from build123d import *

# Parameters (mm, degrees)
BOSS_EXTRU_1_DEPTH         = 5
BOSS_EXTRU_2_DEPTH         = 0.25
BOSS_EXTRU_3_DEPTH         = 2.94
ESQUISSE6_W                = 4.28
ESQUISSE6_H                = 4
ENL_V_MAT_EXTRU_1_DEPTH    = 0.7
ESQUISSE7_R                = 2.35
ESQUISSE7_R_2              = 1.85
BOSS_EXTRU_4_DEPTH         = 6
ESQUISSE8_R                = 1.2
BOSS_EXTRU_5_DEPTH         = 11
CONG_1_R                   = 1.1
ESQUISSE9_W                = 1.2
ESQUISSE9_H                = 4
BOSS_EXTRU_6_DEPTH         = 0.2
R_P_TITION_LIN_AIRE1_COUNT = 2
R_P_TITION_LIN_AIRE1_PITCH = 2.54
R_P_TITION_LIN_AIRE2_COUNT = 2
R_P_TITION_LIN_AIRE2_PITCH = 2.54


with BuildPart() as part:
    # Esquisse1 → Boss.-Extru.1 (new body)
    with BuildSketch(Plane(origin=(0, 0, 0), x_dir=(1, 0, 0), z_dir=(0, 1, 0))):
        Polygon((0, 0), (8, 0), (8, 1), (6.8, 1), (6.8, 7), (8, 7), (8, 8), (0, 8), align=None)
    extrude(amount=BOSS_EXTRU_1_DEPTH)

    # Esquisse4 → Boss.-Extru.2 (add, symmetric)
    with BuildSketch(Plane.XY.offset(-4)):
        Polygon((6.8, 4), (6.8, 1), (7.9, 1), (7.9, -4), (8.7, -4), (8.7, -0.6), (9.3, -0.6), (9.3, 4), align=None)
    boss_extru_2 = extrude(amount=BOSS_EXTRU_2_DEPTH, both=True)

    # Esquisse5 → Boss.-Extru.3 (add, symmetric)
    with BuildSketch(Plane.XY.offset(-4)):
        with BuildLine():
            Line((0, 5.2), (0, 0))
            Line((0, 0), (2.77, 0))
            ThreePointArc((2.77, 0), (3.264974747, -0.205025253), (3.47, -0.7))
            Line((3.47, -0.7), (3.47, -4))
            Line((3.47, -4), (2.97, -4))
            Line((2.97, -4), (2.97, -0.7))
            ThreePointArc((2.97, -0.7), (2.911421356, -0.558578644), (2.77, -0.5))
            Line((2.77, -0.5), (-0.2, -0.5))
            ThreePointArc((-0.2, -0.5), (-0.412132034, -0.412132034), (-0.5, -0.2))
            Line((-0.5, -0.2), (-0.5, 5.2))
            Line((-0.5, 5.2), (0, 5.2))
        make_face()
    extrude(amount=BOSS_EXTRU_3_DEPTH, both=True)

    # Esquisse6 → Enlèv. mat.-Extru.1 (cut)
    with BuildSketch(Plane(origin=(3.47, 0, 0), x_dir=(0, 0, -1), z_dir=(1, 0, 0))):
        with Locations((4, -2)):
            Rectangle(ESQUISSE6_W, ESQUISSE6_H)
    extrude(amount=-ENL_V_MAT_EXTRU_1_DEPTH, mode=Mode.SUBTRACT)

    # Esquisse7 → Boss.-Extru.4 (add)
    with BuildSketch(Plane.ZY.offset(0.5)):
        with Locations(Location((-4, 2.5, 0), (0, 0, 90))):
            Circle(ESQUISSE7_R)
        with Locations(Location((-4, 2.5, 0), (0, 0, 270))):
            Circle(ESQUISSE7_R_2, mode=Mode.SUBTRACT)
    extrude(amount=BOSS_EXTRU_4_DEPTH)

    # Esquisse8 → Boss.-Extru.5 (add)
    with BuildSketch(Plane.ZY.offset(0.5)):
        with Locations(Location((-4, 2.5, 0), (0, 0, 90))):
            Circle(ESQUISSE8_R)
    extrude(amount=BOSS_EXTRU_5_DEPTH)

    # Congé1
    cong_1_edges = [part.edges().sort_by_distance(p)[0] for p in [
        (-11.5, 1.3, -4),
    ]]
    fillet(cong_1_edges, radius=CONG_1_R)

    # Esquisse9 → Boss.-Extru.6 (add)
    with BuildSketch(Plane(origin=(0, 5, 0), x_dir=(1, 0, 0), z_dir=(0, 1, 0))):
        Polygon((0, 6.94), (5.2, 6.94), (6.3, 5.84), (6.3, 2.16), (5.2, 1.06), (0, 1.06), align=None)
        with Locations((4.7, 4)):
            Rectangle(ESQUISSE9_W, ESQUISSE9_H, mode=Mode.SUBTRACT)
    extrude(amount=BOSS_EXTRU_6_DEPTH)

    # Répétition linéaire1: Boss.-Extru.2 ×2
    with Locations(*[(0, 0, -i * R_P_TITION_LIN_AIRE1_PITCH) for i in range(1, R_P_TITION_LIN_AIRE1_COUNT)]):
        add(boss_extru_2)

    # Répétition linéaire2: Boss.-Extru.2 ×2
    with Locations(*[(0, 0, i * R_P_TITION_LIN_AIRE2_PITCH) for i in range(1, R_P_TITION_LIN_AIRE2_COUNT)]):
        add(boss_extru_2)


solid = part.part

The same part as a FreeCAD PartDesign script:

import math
import FreeCAD as App
import Part
import Sketcher
Q = App.Units.Quantity


def edges_at(feature, points):
    """Names of the edges that pass closest to the given points."""
    edges = feature.Shape.Edges
    near = lambda p: min(range(len(edges)), key=lambda i: edges[i].distToShape(Part.Vertex(*p))[0])
    return sorted({f"Edge{near(p) + 1}" for p in points})

doc = App.newDocument("Part")
body = doc.addObject("PartDesign::Body", "Body")

sketch1 = doc.addObject("Sketcher::SketchObject", "Sketch")
body.addObject(sketch1)
sketch1.AttachmentSupport = (doc.XZ_Plane, [""])
sketch1.MapMode = "FlatFace"
sketch1.addGeometry([
    Part.LineSegment(App.Vector(0, 0, 0), App.Vector(8, 0, 0)),
    Part.LineSegment(App.Vector(8, 0, 0), App.Vector(8, -1, 0)),
    Part.LineSegment(App.Vector(8, -1, 0), App.Vector(6.8, -1, 0)),
    Part.LineSegment(App.Vector(6.8, -1, 0), App.Vector(6.8, -7, 0)),
    Part.LineSegment(App.Vector(6.8, -7, 0), App.Vector(8, -7, 0)),
    Part.LineSegment(App.Vector(8, -7, 0), App.Vector(8, -8, 0)),
    Part.LineSegment(App.Vector(8, -8, 0), App.Vector(0, -8, 0)),
    Part.LineSegment(App.Vector(0, -8, 0), App.Vector(0, 0, 0)),
], False)
sketch1.addConstraint([
    Sketcher.Constraint("Coincident", 0, 2, 1, 1),
    Sketcher.Constraint("Coincident", 1, 2, 2, 1),
    Sketcher.Constraint("Coincident", 2, 2, 3, 1),
    Sketcher.Constraint("Coincident", 3, 2, 4, 1),
    Sketcher.Constraint("Coincident", 4, 2, 5, 1),
    Sketcher.Constraint("Coincident", 5, 2, 6, 1),
    Sketcher.Constraint("Coincident", 6, 2, 7, 1),
    Sketcher.Constraint("Coincident", 7, 2, 0, 1),
    Sketcher.Constraint("Horizontal", 0),
    Sketcher.Constraint("Vertical", 1),
    Sketcher.Constraint("Horizontal", 2),
    Sketcher.Constraint("Vertical", 3),
    Sketcher.Constraint("Horizontal", 4),
    Sketcher.Constraint("Vertical", 5),
    Sketcher.Constraint("Horizontal", 6),
    Sketcher.Constraint("Vertical", 7),
    Sketcher.Constraint("Coincident", 7, 2, -1, 1),
    Sketcher.Constraint("Vertical", 1, 2, 4, 2),
    Sketcher.Constraint("Equal", 1, 5),
    Sketcher.Constraint("Equal", 6, 7),
    Sketcher.Constraint("DistanceX", 0, 1, 0, 2, Q("8 mm")),
    Sketcher.Constraint("DistanceY", 1, 2, 1, 1, Q("1 mm")),
    Sketcher.Constraint("DistanceX", 2, 2, 2, 1, Q("1.2 mm")),
])
pad1 = doc.addObject("PartDesign::Pad", "Pad")
body.addObject(pad1)
pad1.Profile = sketch1
pad1.Length = 5
pad1.Reversed = True

sketch2 = doc.addObject("Sketcher::SketchObject", "Sketch001")
body.addObject(sketch2)
sketch2.AttachmentSupport = (doc.XY_Plane, [""])
sketch2.MapMode = "FlatFace"
sketch2.AttachmentOffset = App.Placement(App.Vector(0, 0, -4), App.Rotation())
sketch2.addGeometry([
    Part.LineSegment(App.Vector(6.8, 4, 0), App.Vector(6.8, 1, 0)),
    Part.LineSegment(App.Vector(6.8, 1, 0), App.Vector(7.9, 1, 0)),
    Part.LineSegment(App.Vector(7.9, 1, 0), App.Vector(7.9, -4, 0)),
    Part.LineSegment(App.Vector(7.9, -4, 0), App.Vector(8.7, -4, 0)),
    Part.LineSegment(App.Vector(8.7, -4, 0), App.Vector(8.7, -0.6, 0)),
    Part.LineSegment(App.Vector(8.7, -0.6, 0), App.Vector(9.3, -0.6, 0)),
    Part.LineSegment(App.Vector(9.3, -0.6, 0), App.Vector(9.3, 4, 0)),
    Part.LineSegment(App.Vector(9.3, 4, 0), App.Vector(6.8, 4, 0)),
], False)
sketch2.addConstraint([
    Sketcher.Constraint("Coincident", 0, 2, 1, 1),
    Sketcher.Constraint("Coincident", 1, 2, 2, 1),
    Sketcher.Constraint("Coincident", 2, 2, 3, 1),
    Sketcher.Constraint("Coincident", 3, 2, 4, 1),
    Sketcher.Constraint("Coincident", 4, 2, 5, 1),
    Sketcher.Constraint("Coincident", 5, 2, 6, 1),
    Sketcher.Constraint("Coincident", 6, 2, 7, 1),
    Sketcher.Constraint("Coincident", 7, 2, 0, 1),
    Sketcher.Constraint("Vertical", 0),
    Sketcher.Constraint("Horizontal", 1),
    Sketcher.Constraint("Vertical", 2),
    Sketcher.Constraint("Horizontal", 3),
    Sketcher.Constraint("Vertical", 4),
    Sketcher.Constraint("Horizontal", 5),
    Sketcher.Constraint("Vertical", 6),
    Sketcher.Constraint("Horizontal", 7),
    Sketcher.Constraint("DistanceY", 0, 2, 0, 1, Q("3 mm")),
    Sketcher.Constraint("DistanceY", 2, 2, 2, 1, Q("5 mm")),
    Sketcher.Constraint("DistanceX", 1, 1, 1, 2, Q("1.1 mm")),
    Sketcher.Constraint("DistanceX", 3, 1, 3, 2, Q("0.8 mm")),
    Sketcher.Constraint("DistanceX", 5, 1, 5, 2, Q("0.6 mm")),
    Sketcher.Constraint("DistanceY", 4, 1, 4, 2, Q("3.4 mm")),
    Sketcher.Constraint("DistanceY", -1, 1, 0, 2, Q("1 mm")),
    Sketcher.Constraint("DistanceX", -1, 1, 0, 2, Q("6.8 mm")),
])
pad2 = doc.addObject("PartDesign::Pad", "Pad001")
body.addObject(pad2)
pad2.Profile = sketch2
pad2.Length = 0.5
pad2.Midplane = True

sketch3 = doc.addObject("Sketcher::SketchObject", "Sketch002")
body.addObject(sketch3)
sketch3.AttachmentSupport = (doc.XY_Plane, [""])
sketch3.MapMode = "FlatFace"
sketch3.AttachmentOffset = App.Placement(App.Vector(0, 0, -4), App.Rotation())
sketch3.addGeometry([
    Part.LineSegment(App.Vector(0, 0, 0), App.Vector(0, 5.2, 0)),
    Part.LineSegment(App.Vector(0, 5.2, 0), App.Vector(-0.5, 5.2, 0)),
    Part.LineSegment(App.Vector(-0.5, 5.2, 0), App.Vector(-0.5, -0.2, 0)),
    Part.ArcOfCircle(Part.Circle(App.Vector(-0.2, -0.2, 0), App.Vector(0, 0, 1), 0.3), math.radians(-180), math.radians(-90)),
    Part.LineSegment(App.Vector(-0.2, -0.5, 0), App.Vector(2.77, -0.5, 0)),
    Part.ArcOfCircle(Part.Circle(App.Vector(2.77, -0.7, 0), App.Vector(0, 0, 1), 0.2), math.radians(0), math.radians(90)),
    Part.LineSegment(App.Vector(2.97, -0.7, 0), App.Vector(2.97, -4, 0)),
    Part.LineSegment(App.Vector(2.97, -4, 0), App.Vector(3.47, -4, 0)),
    Part.LineSegment(App.Vector(3.47, -4, 0), App.Vector(3.47, -0.7, 0)),
    Part.ArcOfCircle(Part.Circle(App.Vector(2.77, -0.7, 0), App.Vector(0, 0, 1), 0.7), math.radians(0), math.radians(90)),
    Part.LineSegment(App.Vector(2.77, 0, 0), App.Vector(0, 0, 0)),
], False)
sketch3.addConstraint([
    Sketcher.Constraint("Coincident", 0, 2, 1, 1),
    Sketcher.Constraint("Coincident", 1, 2, 2, 1),
    Sketcher.Constraint("Tangent", 2, 2, 3, 1),
    Sketcher.Constraint("Tangent", 3, 2, 4, 1),
    Sketcher.Constraint("Tangent", 4, 2, 5, 2),
    Sketcher.Constraint("Tangent", 5, 1, 6, 1),
    Sketcher.Constraint("Coincident", 6, 2, 7, 1),
    Sketcher.Constraint("Coincident", 7, 2, 8, 1),
    Sketcher.Constraint("Tangent", 8, 2, 9, 1),
    Sketcher.Constraint("Tangent", 9, 2, 10, 1),
    Sketcher.Constraint("Coincident", 10, 2, 0, 1),
    Sketcher.Constraint("Vertical", 0),
    Sketcher.Constraint("Horizontal", 1),
    Sketcher.Constraint("Vertical", 2),
    Sketcher.Constraint("Horizontal", 4),
    Sketcher.Constraint("Vertical", 6),
    Sketcher.Constraint("Horizontal", 7),
    Sketcher.Constraint("Vertical", 8),
    Sketcher.Constraint("Horizontal", 10),
    Sketcher.Constraint("Coincident", 10, 2, -1, 1),
    Sketcher.Constraint("Coincident", 9, 3, 5, 3),
    Sketcher.Constraint("Equal", 1, 7),
    Sketcher.Constraint("Radius", 3, Q("0.3 mm")),
    Sketcher.Constraint("Radius", 5, Q("0.2 mm")),
    Sketcher.Constraint("Radius", 9, Q("0.7 mm")),
    Sketcher.Constraint("DistanceY", 0, 1, 0, 2, Q("5.2 mm")),
    Sketcher.Constraint("DistanceY", 6, 2, 6, 1, Q("3.3 mm")),
    Sketcher.Constraint("DistanceX", 4, 1, 4, 2, Q("2.97 mm")),
])
pad3 = doc.addObject("PartDesign::Pad", "Pad002")
body.addObject(pad3)
pad3.Profile = sketch3
pad3.Length = 5.88
pad3.Midplane = True

sketch4 = doc.addObject("Sketcher::SketchObject", "Sketch003")
body.addObject(sketch4)
sketch4.AttachmentSupport = (doc.YZ_Plane, [""])
sketch4.MapMode = "FlatFace"
sketch4.AttachmentOffset = App.Placement(App.Vector(0, 0, 3.47), App.Rotation())
sketch4.addGeometry([
    Part.LineSegment(App.Vector(0, -1.86, 0), App.Vector(-4, -1.86, 0)),
    Part.LineSegment(App.Vector(-4, -1.86, 0), App.Vector(-4, -6.14, 0)),
    Part.LineSegment(App.Vector(-4, -6.14, 0), App.Vector(0, -6.14, 0)),
    Part.LineSegment(App.Vector(0, -6.14, 0), App.Vector(0, -1.86, 0)),
], False)
sketch4.addConstraint([
    Sketcher.Constraint("Coincident", 0, 2, 1, 1),
    Sketcher.Constraint("Coincident", 1, 2, 2, 1),
    Sketcher.Constraint("Coincident", 2, 2, 3, 1),
    Sketcher.Constraint("Coincident", 3, 2, 0, 1),
    Sketcher.Constraint("Horizontal", 0),
    Sketcher.Constraint("Vertical", 1),
    Sketcher.Constraint("Horizontal", 2),
    Sketcher.Constraint("Vertical", 3),
    Sketcher.Constraint("PointOnObject", 2, 2, -2),
    Sketcher.Constraint("DistanceX", 0, 2, 0, 1, Q("4 mm")),
    Sketcher.Constraint("DistanceY", 1, 2, 1, 1, Q("4.28 mm")),
    Sketcher.Constraint("DistanceY", 0, 2, -1, 1, Q("1.86 mm")),
])
pocket1 = doc.addObject("PartDesign::Pocket", "Pocket")
body.addObject(pocket1)
pocket1.Profile = sketch4
pocket1.Length = 0.7

sketch5 = doc.addObject("Sketcher::SketchObject", "Sketch004")
body.addObject(sketch5)
sketch5.AttachmentSupport = (doc.YZ_Plane, [""])
sketch5.MapMode = "FlatFace"
sketch5.AttachmentOffset = App.Placement(App.Vector(0, 0, -0.5), App.Rotation())
sketch5.addGeometry([
    Part.Circle(App.Vector(2.5, -4, 0), App.Vector(0, 0, 1), 2.35),
    Part.Circle(App.Vector(2.5, -4, 0), App.Vector(0, 0, 1), 1.85),
], False)
sketch5.addConstraint([
    Sketcher.Constraint("Coincident", 1, 3, 0, 3),
    Sketcher.Constraint("Diameter", 0, Q("4.7 mm")),
    Sketcher.Constraint("Diameter", 1, Q("3.7 mm")),
    Sketcher.Constraint("DistanceY", 0, 3, -1, 1, Q("4 mm")),
    Sketcher.Constraint("DistanceX", -1, 1, 0, 3, Q("2.5 mm")),
])
pad4 = doc.addObject("PartDesign::Pad", "Pad003")
body.addObject(pad4)
pad4.Profile = sketch5
pad4.Length = 6
pad4.Reversed = True

sketch6 = doc.addObject("Sketcher::SketchObject", "Sketch005")
body.addObject(sketch6)
sketch6.AttachmentSupport = (doc.YZ_Plane, [""])
sketch6.MapMode = "FlatFace"
sketch6.AttachmentOffset = App.Placement(App.Vector(0, 0, -0.5), App.Rotation())
sketch6.addGeometry(Part.Circle(App.Vector(2.5, -4, 0), App.Vector(0, 0, 1), 1.2), False)
sketch6.addConstraint([
    Sketcher.Constraint("Diameter", 0, Q("2.4 mm")),
    Sketcher.Constraint("DistanceY", 0, 3, -1, 1, Q("4 mm")),
    Sketcher.Constraint("DistanceX", -1, 1, 0, 3, Q("2.5 mm")),
])
pad5 = doc.addObject("PartDesign::Pad", "Pad004")
body.addObject(pad5)
pad5.Profile = sketch6
pad5.Length = 11
pad5.Reversed = True
doc.recompute()

fillet = doc.addObject("PartDesign::Fillet", "Fillet")
body.addObject(fillet)
fillet.Base = (pad5, edges_at(pad5, [(-11.5, 1.3, -4)]))
fillet.Radius = 1.1

sketch7 = doc.addObject("Sketcher::SketchObject", "Sketch006")
body.addObject(sketch7)
sketch7.AttachmentSupport = (doc.XZ_Plane, [""])
sketch7.MapMode = "FlatFace"
sketch7.AttachmentOffset = App.Placement(App.Vector(0, 0, -5), App.Rotation())
sketch7.addGeometry([
    Part.LineSegment(App.Vector(5.2, -6.94, 0), App.Vector(0, -6.94, 0)),
    Part.LineSegment(App.Vector(0, -6.94, 0), App.Vector(0, -1.06, 0)),
    Part.LineSegment(App.Vector(0, -1.06, 0), App.Vector(5.2, -1.06, 0)),
    Part.LineSegment(App.Vector(5.2, -1.06, 0), App.Vector(6.3, -2.16, 0)),
    Part.LineSegment(App.Vector(6.3, -2.16, 0), App.Vector(6.3, -5.84, 0)),
    Part.LineSegment(App.Vector(6.3, -5.84, 0), App.Vector(5.2, -6.94, 0)),
    Part.LineSegment(App.Vector(4.1, -2, 0), App.Vector(4.1, -6, 0)),
    Part.LineSegment(App.Vector(4.1, -6, 0), App.Vector(5.3, -6, 0)),
    Part.LineSegment(App.Vector(5.3, -6, 0), App.Vector(5.3, -2, 0)),
    Part.LineSegment(App.Vector(5.3, -2, 0), App.Vector(4.1, -2, 0)),
], False)
sketch7.addConstraint([
    Sketcher.Constraint("Coincident", 0, 2, 1, 1),
    Sketcher.Constraint("Coincident", 1, 2, 2, 1),
    Sketcher.Constraint("Coincident", 2, 2, 3, 1),
    Sketcher.Constraint("Coincident", 3, 2, 4, 1),
    Sketcher.Constraint("Coincident", 4, 2, 5, 1),
    Sketcher.Constraint("Coincident", 5, 2, 0, 1),
    Sketcher.Constraint("Coincident", 6, 2, 7, 1),
    Sketcher.Constraint("Coincident", 7, 2, 8, 1),
    Sketcher.Constraint("Coincident", 8, 2, 9, 1),
    Sketcher.Constraint("Coincident", 9, 2, 6, 1),
    Sketcher.Constraint("Horizontal", 0),
    Sketcher.Constraint("Vertical", 1),
    Sketcher.Constraint("Horizontal", 2),
    Sketcher.Constraint("Vertical", 4),
    Sketcher.Constraint("Vertical", 6),
    Sketcher.Constraint("Horizontal", 7),
    Sketcher.Constraint("Vertical", 8),
    Sketcher.Constraint("Horizontal", 9),
    Sketcher.Constraint("PointOnObject", 0, 2, -2),
    Sketcher.Constraint("Perpendicular", 3, 5),
    Sketcher.Constraint("Vertical", 2, 2, 5, 2),
    Sketcher.Constraint("Equal", 3, 5),
    Sketcher.Constraint("DistanceY", 6, 2, 6, 1, Q("4 mm")),
    Sketcher.Constraint("DistanceX", 0, 2, 0, 1, Q("5.2 mm")),
    Sketcher.Constraint("DistanceX", 7, 1, 7, 2, Q("1.2 mm")),
    Sketcher.Constraint("DistanceY", 6, 2, -1, 1, Q("6 mm")),
    Sketcher.Constraint("DistanceX", 7, 2, 4, 2, Q("1 mm")),
    Sketcher.Constraint("DistanceY", 1, 1, 1, 2, Q("5.88 mm")),
    Sketcher.Constraint("DistanceY", 4, 2, 4, 1, Q("3.68 mm")),
    Sketcher.Constraint("DistanceY", 0, 2, -1, 1, Q("6.94 mm")),
])
pad6 = doc.addObject("PartDesign::Pad", "Pad005")
body.addObject(pad6)
pad6.Profile = sketch7
pad6.Length = 0.2
pad6.Reversed = True
doc.recompute()

linearpattern = doc.addObject("PartDesign::LinearPattern", "LinearPattern")
body.addObject(linearpattern)
linearpattern.Originals = [pad2]
linearpattern.Direction = (doc.Z_Axis, [""])
linearpattern.Mode = "offset"
linearpattern.Offset = 2.54
linearpattern.Occurrences = 2
linearpattern.Reversed = True
body.Tip = linearpattern
doc.recompute()

linearpattern2 = doc.addObject("PartDesign::LinearPattern", "LinearPattern001")
body.addObject(linearpattern2)
linearpattern2.Originals = [pad2]
linearpattern2.Direction = (doc.Z_Axis, [""])
linearpattern2.Mode = "offset"
linearpattern2.Offset = 2.54
linearpattern2.Occurrences = 2
body.Tip = linearpattern2

doc.recompute()
